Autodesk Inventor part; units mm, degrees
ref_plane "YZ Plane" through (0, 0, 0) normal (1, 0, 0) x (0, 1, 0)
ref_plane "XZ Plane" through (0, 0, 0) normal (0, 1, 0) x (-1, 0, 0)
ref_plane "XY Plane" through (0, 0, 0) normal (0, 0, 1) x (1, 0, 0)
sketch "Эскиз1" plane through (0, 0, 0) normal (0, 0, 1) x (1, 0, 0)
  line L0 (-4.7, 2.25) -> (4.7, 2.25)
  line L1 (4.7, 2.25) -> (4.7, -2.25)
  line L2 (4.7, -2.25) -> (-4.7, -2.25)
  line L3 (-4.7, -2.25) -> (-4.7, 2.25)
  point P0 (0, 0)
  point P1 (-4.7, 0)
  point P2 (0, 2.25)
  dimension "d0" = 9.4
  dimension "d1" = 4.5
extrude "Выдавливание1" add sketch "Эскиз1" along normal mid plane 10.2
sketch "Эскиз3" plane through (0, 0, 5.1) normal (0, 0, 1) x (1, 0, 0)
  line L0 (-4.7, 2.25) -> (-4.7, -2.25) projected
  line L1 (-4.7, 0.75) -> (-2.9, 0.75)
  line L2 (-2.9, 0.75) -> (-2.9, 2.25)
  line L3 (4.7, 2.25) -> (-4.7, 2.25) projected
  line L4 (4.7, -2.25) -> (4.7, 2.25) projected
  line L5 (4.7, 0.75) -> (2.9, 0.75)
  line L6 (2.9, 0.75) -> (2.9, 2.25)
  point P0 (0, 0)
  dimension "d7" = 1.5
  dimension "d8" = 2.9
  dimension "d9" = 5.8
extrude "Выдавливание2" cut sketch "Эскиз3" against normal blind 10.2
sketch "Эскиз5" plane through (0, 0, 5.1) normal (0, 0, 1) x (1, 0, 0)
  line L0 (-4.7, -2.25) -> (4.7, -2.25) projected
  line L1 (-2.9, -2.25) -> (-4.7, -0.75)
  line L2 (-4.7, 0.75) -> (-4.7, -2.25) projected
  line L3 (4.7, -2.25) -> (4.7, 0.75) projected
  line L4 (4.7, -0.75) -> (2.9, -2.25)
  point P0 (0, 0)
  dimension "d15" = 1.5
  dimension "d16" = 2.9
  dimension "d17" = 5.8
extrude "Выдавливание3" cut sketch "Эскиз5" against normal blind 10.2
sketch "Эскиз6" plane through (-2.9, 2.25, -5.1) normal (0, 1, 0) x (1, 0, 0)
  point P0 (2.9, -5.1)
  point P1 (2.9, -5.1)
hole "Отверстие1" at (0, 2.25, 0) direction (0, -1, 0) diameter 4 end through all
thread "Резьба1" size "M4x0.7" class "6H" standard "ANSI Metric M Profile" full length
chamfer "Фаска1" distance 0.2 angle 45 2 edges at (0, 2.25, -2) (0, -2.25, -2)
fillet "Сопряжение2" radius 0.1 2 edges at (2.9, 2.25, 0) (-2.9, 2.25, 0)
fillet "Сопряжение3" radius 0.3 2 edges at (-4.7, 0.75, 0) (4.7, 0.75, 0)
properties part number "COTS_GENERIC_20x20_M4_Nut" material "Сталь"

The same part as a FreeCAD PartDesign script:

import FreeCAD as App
import Part
import Sketcher
from FreeCAD import Vector
Q = App.Units.Quantity


def edges_at(feature, points):
    """Names of the edges that pass closest to the given points."""
    edges = feature.Shape.Edges
    near = lambda p: min(range(len(edges)), key=lambda i: edges[i].distToShape(Part.Vertex(*p))[0])
    return sorted({f"Edge{near(p) + 1}" for p in points})


def add_polygon(sketch, points):
    """Adds a closed chain of lines whose ends are joined by coincident constraints."""
    first, n = sketch.GeometryCount, len(points)
    for a, b in zip(points, points[1:] + points[:1]):
        sketch.addGeometry(Part.LineSegment(App.Vector(*a, 0), App.Vector(*b, 0)), False)
    for i in range(n):
        sketch.addConstraint(Sketcher.Constraint("Coincident", first + i, 2, first + (i + 1) % n, 1))

doc = App.newDocument("Part")
body = doc.addObject("PartDesign::Body", "Body")

# Sketch on XY plane
sketch1 = body.newObject("Sketcher::SketchObject", "Sketch")
sketch1.AttachmentSupport = (doc.getObject("XY_Plane"), [""])
sketch1.MapMode = "FlatFace"
add_polygon(sketch1, [(4.7, 2.2), (-4.7, 2.2), (-4.7, -2.2), (4.7, -2.2)])  # lines 0-3
sketch1.addConstraint([
    Sketcher.Constraint("Horizontal", 0),
    Sketcher.Constraint("Vertical", 1),
    Sketcher.Constraint("Horizontal", 2),
    Sketcher.Constraint("Vertical", 3),
    Sketcher.Constraint("Symmetric", 0, 2, 2, 2, -1, 1),
    Sketcher.Constraint("DistanceX", 0, 2, 0, 1, Q("9.4 mm")),
    Sketcher.Constraint("DistanceY", 1, 2, 1, 1, Q("4.5 mm")),
])
pad1 = body.newObject("PartDesign::Pad", "Pad")
pad1.Profile = sketch1
pad1.Length = 10.2
pad1.Midplane = True

# Sketch on XY plane
sketch2 = body.newObject("Sketcher::SketchObject", "Sketch001")
sketch2.AttachmentSupport = (doc.getObject("XY_Plane"), [""])
sketch2.MapMode = "FlatFace"
sketch2.AttachmentOffset = App.Placement(Vector(0, 0, 5.1), App.Rotation())
add_polygon(sketch2, [(-2.9, 2.2), (-4.7, 2.2), (-4.7, 0.8), (-2.9, 0.8)])  # lines 0-3
add_polygon(sketch2, [(4.7, 2.2), (2.9, 2.2), (2.9, 0.8), (4.7, 0.8)])  # lines 4-7
sketch2.addConstraint([
    Sketcher.Constraint("Horizontal", 0),
    Sketcher.Constraint("Vertical", 1),
    Sketcher.Constraint("Horizontal", 2),
    Sketcher.Constraint("Vertical", 3),
    Sketcher.Constraint("Horizontal", 4),
    Sketcher.Constraint("Vertical", 5),
    Sketcher.Constraint("Horizontal", 6),
    Sketcher.Constraint("Vertical", 7),
    Sketcher.Constraint("Symmetric", 3, 2, 4, 2, -2),
    Sketcher.Constraint("Symmetric", 1, 2, 6, 2, -2),
    Sketcher.Constraint("DistanceY", 1, 2, 1, 1, Q("1.5 mm")),
    Sketcher.Constraint("DistanceX", 2, 2, -1, 1, Q("2.9 mm")),
    Sketcher.Constraint("DistanceX", 0, 2, 0, 1, Q("1.8 mm")),
    Sketcher.Constraint("DistanceY", -1, 1, 0, 2, Q("2.25 mm")),
])
pocket1 = body.newObject("PartDesign::Pocket", "Pocket")
pocket1.Profile = sketch2
pocket1.Length = 10.2

# Sketch on XY plane
sketch3 = body.newObject("Sketcher::SketchObject", "Sketch002")
sketch3.AttachmentSupport = (doc.getObject("XY_Plane"), [""])
sketch3.MapMode = "FlatFace"
sketch3.AttachmentOffset = App.Placement(Vector(0, 0, 5.1), App.Rotation())
add_polygon(sketch3, [(-4.7, -0.8), (-4.7, -2.2), (-2.9, -2.2)])  # lines 0-2
add_polygon(sketch3, [(4.7, -0.8), (2.9, -2.2), (4.7, -2.2)])  # lines 3-5
sketch3.addConstraint([
    Sketcher.Constraint("Vertical", 0),
    Sketcher.Constraint("Horizontal", 1),
    Sketcher.Constraint("Horizontal", 4),
    Sketcher.Constraint("Vertical", 5),
    Sketcher.Constraint("Symmetric", 1, 2, 3, 2, -2),
    Sketcher.Constraint("Symmetric", 2, 2, 5, 2, -2),
    Sketcher.Constraint("DistanceY", 0, 2, 0, 1, Q("1.5 mm")),
    Sketcher.Constraint("DistanceX", 1, 2, -1, 1, Q("2.9 mm")),
    Sketcher.Constraint("DistanceX", 1, 1, 1, 2, Q("1.8 mm")),
    Sketcher.Constraint("DistanceY", 0, 2, -1, 1, Q("2.25 mm")),
])
pocket2 = body.newObject("PartDesign::Pocket", "Pocket001")
pocket2.Profile = sketch3
pocket2.Length = 10.2

# Sketch on XZ plane
sketch4 = body.newObject("Sketcher::SketchObject", "Sketch003")
sketch4.AttachmentSupport = (doc.getObject("XZ_Plane"), [""])
sketch4.MapMode = "FlatFace"
sketch4.AttachmentOffset = App.Placement(Vector(0, 0, -2.25), App.Rotation())
sketch4.addGeometry(Part.Circle(Vector(0, 0, 0), Vector(0, 0, 1), 2), False)
sketch4.addConstraint([
    Sketcher.Constraint("Coincident", 0, 3, -1, 1),
    Sketcher.Constraint("Diameter", 0, Q("4 mm")),
])
doc.recompute()
hole = body.newObject("PartDesign::Hole", "Hole")
hole.Profile = sketch4
hole.ThreadType = "None"
hole.Diameter = 4
hole.DepthType = "ThroughAll"
hole.Reversed = True
doc.recompute()

chamfer = body.newObject("PartDesign::Chamfer", "Chamfer")
chamfer.Base = (hole, edges_at(hole, [(0, 2.25, -2), (0, -2.25, -2)]))
chamfer.Size = 0.2
doc.recompute()

fillet = body.newObject("PartDesign::Fillet", "Fillet")
fillet.Base = (chamfer, edges_at(chamfer, [(2.9, 2.25, 0), (-2.9, 2.25, 0)]))
fillet.Radius = 0.1
doc.recompute()

fillet2 = body.newObject("PartDesign::Fillet", "Fillet001")
fillet2.Base = (fillet, edges_at(fillet, [(-4.7, 0.75, 0), (4.7, 0.75, 0)]))
fillet2.Radius = 0.3

doc.recompute()
